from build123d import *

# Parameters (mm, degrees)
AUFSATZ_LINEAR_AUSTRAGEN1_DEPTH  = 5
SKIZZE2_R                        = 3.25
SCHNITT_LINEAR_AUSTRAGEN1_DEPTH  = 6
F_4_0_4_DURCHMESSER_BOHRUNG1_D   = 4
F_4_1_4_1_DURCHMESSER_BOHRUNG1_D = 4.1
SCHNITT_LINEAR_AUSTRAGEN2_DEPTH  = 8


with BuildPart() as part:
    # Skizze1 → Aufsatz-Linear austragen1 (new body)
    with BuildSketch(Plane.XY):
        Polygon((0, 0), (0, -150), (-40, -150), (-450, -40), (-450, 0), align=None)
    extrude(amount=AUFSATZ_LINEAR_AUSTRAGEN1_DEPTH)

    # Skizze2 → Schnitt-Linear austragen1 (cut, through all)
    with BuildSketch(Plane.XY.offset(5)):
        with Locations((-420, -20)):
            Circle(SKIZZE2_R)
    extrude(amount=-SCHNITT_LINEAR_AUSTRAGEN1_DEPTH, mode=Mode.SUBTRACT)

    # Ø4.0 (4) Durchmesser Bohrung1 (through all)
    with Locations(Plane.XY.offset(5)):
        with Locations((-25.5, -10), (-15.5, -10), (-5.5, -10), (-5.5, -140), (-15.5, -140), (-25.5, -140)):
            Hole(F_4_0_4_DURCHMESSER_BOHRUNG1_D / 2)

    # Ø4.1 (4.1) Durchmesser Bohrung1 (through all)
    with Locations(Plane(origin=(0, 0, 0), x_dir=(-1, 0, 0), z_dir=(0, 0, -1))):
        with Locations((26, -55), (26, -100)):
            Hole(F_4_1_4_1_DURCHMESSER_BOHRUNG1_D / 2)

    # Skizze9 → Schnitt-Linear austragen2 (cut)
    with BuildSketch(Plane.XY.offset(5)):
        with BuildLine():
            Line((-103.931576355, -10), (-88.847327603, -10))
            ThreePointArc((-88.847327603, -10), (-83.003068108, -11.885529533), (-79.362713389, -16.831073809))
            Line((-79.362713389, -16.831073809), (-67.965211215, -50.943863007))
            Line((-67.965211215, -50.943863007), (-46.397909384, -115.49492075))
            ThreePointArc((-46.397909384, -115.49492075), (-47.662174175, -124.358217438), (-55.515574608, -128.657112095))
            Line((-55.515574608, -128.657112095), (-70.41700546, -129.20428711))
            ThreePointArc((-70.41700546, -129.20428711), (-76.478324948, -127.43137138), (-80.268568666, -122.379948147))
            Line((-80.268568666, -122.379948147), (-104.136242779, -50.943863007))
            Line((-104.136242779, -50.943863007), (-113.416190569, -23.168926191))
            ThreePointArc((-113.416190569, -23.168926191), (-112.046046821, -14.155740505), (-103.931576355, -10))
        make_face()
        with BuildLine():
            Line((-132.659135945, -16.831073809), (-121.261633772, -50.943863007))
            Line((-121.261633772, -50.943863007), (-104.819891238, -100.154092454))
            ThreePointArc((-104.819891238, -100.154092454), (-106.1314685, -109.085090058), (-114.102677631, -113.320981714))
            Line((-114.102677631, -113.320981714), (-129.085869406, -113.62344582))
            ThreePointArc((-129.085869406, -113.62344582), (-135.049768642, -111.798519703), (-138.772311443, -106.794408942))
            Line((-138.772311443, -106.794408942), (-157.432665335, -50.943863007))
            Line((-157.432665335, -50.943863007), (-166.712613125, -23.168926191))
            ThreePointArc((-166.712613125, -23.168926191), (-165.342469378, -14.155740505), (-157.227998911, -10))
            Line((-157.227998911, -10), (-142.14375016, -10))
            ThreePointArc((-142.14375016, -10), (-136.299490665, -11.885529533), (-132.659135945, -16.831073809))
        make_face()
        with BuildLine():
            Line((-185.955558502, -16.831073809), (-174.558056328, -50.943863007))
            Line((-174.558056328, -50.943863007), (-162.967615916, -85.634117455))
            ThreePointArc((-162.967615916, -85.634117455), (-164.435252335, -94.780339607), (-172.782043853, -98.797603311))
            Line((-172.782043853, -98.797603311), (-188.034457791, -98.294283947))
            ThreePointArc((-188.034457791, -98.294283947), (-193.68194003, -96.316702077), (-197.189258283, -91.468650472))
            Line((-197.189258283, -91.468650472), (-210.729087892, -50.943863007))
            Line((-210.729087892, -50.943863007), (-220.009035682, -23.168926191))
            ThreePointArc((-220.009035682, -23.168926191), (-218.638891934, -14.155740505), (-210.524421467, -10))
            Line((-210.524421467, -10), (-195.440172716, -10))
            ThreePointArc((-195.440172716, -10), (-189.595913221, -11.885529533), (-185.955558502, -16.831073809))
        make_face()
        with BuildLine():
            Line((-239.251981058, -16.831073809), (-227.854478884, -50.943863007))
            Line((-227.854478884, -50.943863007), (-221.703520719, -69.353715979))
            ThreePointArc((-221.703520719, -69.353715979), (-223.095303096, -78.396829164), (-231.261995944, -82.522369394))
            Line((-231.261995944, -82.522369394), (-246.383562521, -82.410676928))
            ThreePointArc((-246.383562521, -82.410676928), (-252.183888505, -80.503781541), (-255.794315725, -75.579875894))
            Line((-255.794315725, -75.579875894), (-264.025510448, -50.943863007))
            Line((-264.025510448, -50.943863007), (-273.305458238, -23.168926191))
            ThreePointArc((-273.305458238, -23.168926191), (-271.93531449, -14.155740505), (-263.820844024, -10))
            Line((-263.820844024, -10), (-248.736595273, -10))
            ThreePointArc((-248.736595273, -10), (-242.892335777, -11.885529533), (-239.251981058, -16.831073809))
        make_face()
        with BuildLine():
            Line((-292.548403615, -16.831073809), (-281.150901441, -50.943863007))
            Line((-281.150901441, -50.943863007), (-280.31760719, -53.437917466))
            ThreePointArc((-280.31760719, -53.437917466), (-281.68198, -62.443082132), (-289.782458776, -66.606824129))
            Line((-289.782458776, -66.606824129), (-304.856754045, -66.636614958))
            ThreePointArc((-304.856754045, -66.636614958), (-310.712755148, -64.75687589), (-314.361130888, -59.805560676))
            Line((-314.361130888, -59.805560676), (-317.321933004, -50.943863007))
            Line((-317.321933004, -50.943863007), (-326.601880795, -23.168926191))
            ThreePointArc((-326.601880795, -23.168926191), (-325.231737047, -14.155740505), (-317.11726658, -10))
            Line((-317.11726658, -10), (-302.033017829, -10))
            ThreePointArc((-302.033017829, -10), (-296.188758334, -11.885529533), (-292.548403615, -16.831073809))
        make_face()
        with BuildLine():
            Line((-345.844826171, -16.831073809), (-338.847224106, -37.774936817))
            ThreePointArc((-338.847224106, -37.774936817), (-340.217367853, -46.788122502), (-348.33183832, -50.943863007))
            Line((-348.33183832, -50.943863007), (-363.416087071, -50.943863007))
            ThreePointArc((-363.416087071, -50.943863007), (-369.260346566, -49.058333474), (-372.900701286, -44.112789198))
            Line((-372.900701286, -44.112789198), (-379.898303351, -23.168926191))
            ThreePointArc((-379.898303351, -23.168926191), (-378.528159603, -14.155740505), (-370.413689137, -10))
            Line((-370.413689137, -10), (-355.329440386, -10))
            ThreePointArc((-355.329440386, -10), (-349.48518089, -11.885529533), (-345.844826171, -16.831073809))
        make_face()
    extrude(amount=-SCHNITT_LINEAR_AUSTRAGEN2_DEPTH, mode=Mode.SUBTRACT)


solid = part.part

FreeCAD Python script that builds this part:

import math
import FreeCAD as App
import Part
import Sketcher


def add_polygon(sketch, points):
    """Adds a closed chain of lines whose ends are joined by coincident constraints."""
    first, n = sketch.GeometryCount, len(points)
    for a, b in zip(points, points[1:] + points[:1]):
        sketch.addGeometry(Part.LineSegment(App.Vector(*a, 0), App.Vector(*b, 0)), False)
    for i in range(n):
        sketch.addConstraint(Sketcher.Constraint("Coincident", first + i, 2, first + (i + 1) % n, 1))

doc = App.newDocument("Part")
body = doc.addObject("PartDesign::Body", "Body")

# Sketch on XY plane
sketch1 = body.newObject("Sketcher::SketchObject", "Sketch")
sketch1.AttachmentSupport = (doc.getObject("XY_Plane"), [""])
sketch1.MapMode = "FlatFace"
add_polygon(sketch1, [(0, -150), (0, 0), (-450, 0), (-450, -40), (-40, -150)])  # lines 0-4
sketch1.addConstraint([
    Sketcher.Constraint("Vertical", 0),
    Sketcher.Constraint("Horizontal", 1),
    Sketcher.Constraint("Vertical", 2),
    Sketcher.Constraint("Horizontal", 4),
    Sketcher.Constraint("Coincident", 0, 2, -1, 1),
    Sketcher.Constraint("Equal", 4, 2),
    Sketcher.Constraint("DistanceX", 1, 2, 1, 1, 450.0),
    Sketcher.Constraint("DistanceX", 4, 1, 4, 2, 40.0),
    Sketcher.Constraint("DistanceY", 0, 1, 0, 2, 150.0),
])
pad1 = body.newObject("PartDesign::Pad", "Pad")
pad1.Profile = sketch1
pad1.Length = 5

# Sketch on XY plane
sketch2 = body.newObject("Sketcher::SketchObject", "Sketch001")
sketch2.AttachmentSupport = (doc.getObject("XY_Plane"), [""])
sketch2.MapMode = "FlatFace"
sketch2.AttachmentOffset = App.Placement(App.Vector(0, 0, 5), App.Rotation())
sketch2.addGeometry(Part.Circle(App.Vector(-420, -20, 0), App.Vector(0, 0, 1), 3.25), False)
sketch2.addConstraint([
    Sketcher.Constraint("Diameter", 0, 6.5),
    Sketcher.Constraint("DistanceX", 0, 3, -1, 1, 420.0),
    Sketcher.Constraint("DistanceY", 0, 3, -1, 1, 20.0),
])
pocket1 = body.newObject("PartDesign::Pocket", "Pocket")
pocket1.Profile = sketch2
pocket1.Type = "ThroughAll"

# Sketch on XY plane
sketch3 = body.newObject("Sketcher::SketchObject", "Sketch002")
sketch3.AttachmentSupport = (doc.getObject("XY_Plane"), [""])
sketch3.MapMode = "FlatFace"
sketch3.AttachmentOffset = App.Placement(App.Vector(0, 0, 5), App.Rotation())
sketch3.addGeometry([
    Part.Circle(App.Vector(-25.5, -10, 0), App.Vector(0, 0, 1), 2),  # 0
    Part.Circle(App.Vector(-15.5, -10, 0), App.Vector(0, 0, 1), 2),  # 1
    Part.Circle(App.Vector(-5.5, -10, 0), App.Vector(0, 0, 1), 2),  # 2
    Part.Circle(App.Vector(-5.5, -140, 0), App.Vector(0, 0, 1), 2),  # 3
    Part.Circle(App.Vector(-15.5, -140, 0), App.Vector(0, 0, 1), 2),  # 4
    Part.Circle(App.Vector(-25.5, -140, 0), App.Vector(0, 0, 1), 2),  # 5
], False)
sketch3.addConstraint([
    Sketcher.Constraint("Equal", 0, 1),
    Sketcher.Constraint("Equal", 1, 2),
    Sketcher.Constraint("Equal", 2, 3),
    Sketcher.Constraint("Equal", 3, 4),
    Sketcher.Constraint("Equal", 4, 5),
    Sketcher.Constraint("Horizontal", 0, 3, 1, 3),
    Sketcher.Constraint("Horizontal", 1, 3, 2, 3),
    Sketcher.Constraint("Horizontal", 3, 3, 4, 3),
    Sketcher.Constraint("Horizontal", 4, 3, 5, 3),
    Sketcher.Constraint("Vertical", 2, 3, 3, 3),
    Sketcher.Constraint("Vertical", 1, 3, 4, 3),
    Sketcher.Constraint("Vertical", 0, 3, 5, 3),
    Sketcher.Constraint("Diameter", 0, 4.0),
    Sketcher.Constraint("DistanceY", 0, 3, -1, 1, 10.0),
    Sketcher.Constraint("DistanceY", 3, 3, -1, 1, 140.0),
    Sketcher.Constraint("DistanceX", 0, 3, 1, 3, 10.0),
    Sketcher.Constraint("DistanceX", 1, 3, 2, 3, 10.0),
    Sketcher.Constraint("DistanceX", 0, 3, -1, 1, 25.5),
])
doc.recompute()
hole = body.newObject("PartDesign::Hole", "Hole")
hole.Profile = sketch3
hole.ThreadType = "None"
hole.Diameter = 4
hole.DepthType = "ThroughAll"

# Sketch on XY plane
sketch4 = body.newObject("Sketcher::SketchObject", "Sketch003")
sketch4.AttachmentSupport = (doc.getObject("XY_Plane"), [""])
sketch4.MapMode = "FlatFace"
sketch4.addGeometry([
    Part.Circle(App.Vector(-26, -55, 0), App.Vector(0, 0, 1), 2.05),
    Part.Circle(App.Vector(-26, -100, 0), App.Vector(0, 0, 1), 2.05),
], False)
sketch4.addConstraint([
    Sketcher.Constraint("Equal", 0, 1),
    Sketcher.Constraint("Vertical", 0, 3, 1, 3),
    Sketcher.Constraint("Diameter", 0, 4.1),
    Sketcher.Constraint("DistanceX", 0, 3, -1, 1, 26.0),
    Sketcher.Constraint("DistanceY", 0, 3, -1, 1, 55.0),
    Sketcher.Constraint("DistanceY", 1, 3, -1, 1, 100.0),
])
doc.recompute()
hole2 = body.newObject("PartDesign::Hole", "Hole001")
hole2.Profile = sketch4
hole2.ThreadType = "None"
hole2.Diameter = 4.1
hole2.DepthType = "ThroughAll"
hole2.Reversed = True

# Sketch on XY plane
sketch5 = body.newObject("Sketcher::SketchObject", "Sketch004")
sketch5.AttachmentSupport = (doc.getObject("XY_Plane"), [""])
sketch5.MapMode = "FlatFace"
sketch5.AttachmentOffset = App.Placement(App.Vector(0, 0, 5), App.Rotation())
sketch5.addGeometry([
    Part.LineSegment(App.Vector(-88.847328, -10, 0), App.Vector(-103.931576, -10, 0)),  # 0
    Part.ArcOfCircle(Part.Circle(App.Vector(-103.931576, -20, 0), App.Vector(0, 0, 1), 10), math.radians(90), math.radians(198.475107)),  # 1
    Part.LineSegment(App.Vector(-113.416191, -23.168926, 0), App.Vector(-104.136243, -50.943863, 0)),  # 2
    Part.LineSegment(App.Vector(-104.136243, -50.943863, 0), App.Vector(-80.268569, -122.379948, 0)),  # 3
    Part.ArcOfCircle(Part.Circle(App.Vector(-70.783954, -119.211022, 0), App.Vector(0, 0, 1), 10), math.radians(-161.524893), math.radians(-87.897065)),  # 4
    Part.LineSegment(App.Vector(-70.417005, -129.204287, 0), App.Vector(-55.515575, -128.657112, 0)),  # 5
    Part.ArcOfCircle(Part.Circle(App.Vector(-55.882524, -118.663847, 0), App.Vector(0, 0, 1), 10), math.radians(-87.897065), math.radians(18.475107)),  # 6
    Part.LineSegment(App.Vector(-46.397909, -115.494921, 0), App.Vector(-67.965211, -50.943863, 0)),  # 7
    Part.LineSegment(App.Vector(-67.965211, -50.943863, 0), App.Vector(-79.362713, -16.831074, 0)),  # 8
    Part.ArcOfCircle(Part.Circle(App.Vector(-88.847328, -20, 0), App.Vector(0, 0, 1), 10), math.radians(18.475107), math.radians(90)),  # 9
    Part.LineSegment(App.Vector(-121.261634, -50.943863, 0), App.Vector(-132.659136, -16.831074, 0)),  # 10
    Part.ArcOfCircle(Part.Circle(App.Vector(-142.14375, -20, 0), App.Vector(0, 0, 1), 10), math.radians(18.475107), math.radians(90)),  # 11
    Part.LineSegment(App.Vector(-142.14375, -10, 0), App.Vector(-157.227999, -10, 0)),  # 12
    Part.ArcOfCircle(Part.Circle(App.Vector(-157.227999, -20, 0), App.Vector(0, 0, 1), 10), math.radians(90), math.radians(198.475107)),  # 13
    Part.LineSegment(App.Vector(-166.712613, -23.168926, 0), App.Vector(-157.432665, -50.943863, 0)),  # 14
    Part.LineSegment(App.Vector(-157.432665, -50.943863, 0), App.Vector(-138.772311, -106.794409, 0)),  # 15
    Part.ArcOfCircle(Part.Circle(App.Vector(-129.287697, -103.625483, 0), App.Vector(0, 0, 1), 10), math.radians(-161.524893), math.radians(-88.843533)),  # 16
    Part.LineSegment(App.Vector(-129.085869, -113.623446, 0), App.Vector(-114.102678, -113.320982, 0)),  # 17
    Part.ArcOfCircle(Part.Circle(App.Vector(-114.304505, -103.323019, 0), App.Vector(0, 0, 1), 10), math.radians(-88.843533), math.radians(18.475107)),  # 18
    Part.LineSegment(App.Vector(-104.819891, -100.154092, 0), App.Vector(-121.261634, -50.943863, 0)),  # 19
    Part.LineSegment(App.Vector(-162.967616, -85.634117, 0), App.Vector(-185.955559, -16.831074, 0)),  # 20
    Part.ArcOfCircle(Part.Circle(App.Vector(-195.440173, -20, 0), App.Vector(0, 0, 1), 10), math.radians(18.475107), math.radians(90)),  # 21
    Part.LineSegment(App.Vector(-195.440173, -10, 0), App.Vector(-210.524421, -10, 0)),  # 22
    Part.ArcOfCircle(Part.Circle(App.Vector(-210.524421, -20, 0), App.Vector(0, 0, 1), 10), math.radians(90), math.radians(198.475107)),  # 23
    Part.LineSegment(App.Vector(-220.009036, -23.168926, 0), App.Vector(-210.729088, -50.943863, 0)),  # 24
    Part.LineSegment(App.Vector(-210.729088, -50.943863, 0), App.Vector(-197.189258, -91.46865, 0)),  # 25
    Part.ArcOfCircle(Part.Circle(App.Vector(-187.704644, -88.299724, 0), App.Vector(0, 0, 1), 10), math.radians(-161.524893), math.radians(-91.890036)),  # 26
    Part.LineSegment(App.Vector(-188.034458, -98.294284, 0), App.Vector(-172.782044, -98.797603, 0)),  # 27
    Part.ArcOfCircle(Part.Circle(App.Vector(-172.45223, -88.803044, 0), App.Vector(0, 0, 1), 10), math.radians(-91.890036), math.radians(18.475107)),  # 28
    Part.LineSegment(App.Vector(-227.854479, -50.943863, 0), App.Vector(-239.251981, -16.831074, 0)),  # 29
    Part.ArcOfCircle(Part.Circle(App.Vector(-248.736595, -20, 0), App.Vector(0, 0, 1), 10), math.radians(18.475107), math.radians(90)),  # 30
    Part.LineSegment(App.Vector(-248.736595, -10, 0), App.Vector(-263.820844, -10, 0)),  # 31
    Part.ArcOfCircle(Part.Circle(App.Vector(-263.820844, -20, 0), App.Vector(0, 0, 1), 10), math.radians(90), math.radians(198.475107)),  # 32
    Part.LineSegment(App.Vector(-273.305458, -23.168926, 0), App.Vector(-264.02551, -50.943863, 0)),  # 33
    Part.LineSegment(App.Vector(-264.02551, -50.943863, 0), App.Vector(-255.794316, -75.579876, 0)),  # 34
    Part.ArcOfCircle(Part.Circle(App.Vector(-246.309702, -72.41095, 0), App.Vector(0, 0, 1), 10), math.radians(-161.524893), math.radians(-90.423196)),  # 35
    Part.LineSegment(App.Vector(-246.383563, -82.410677, 0), App.Vector(-231.261996, -82.522369, 0)),  # 36
    Part.ArcOfCircle(Part.Circle(App.Vector(-231.188135, -72.522642, 0), App.Vector(0, 0, 1), 10), math.radians(-90.423196), math.radians(18.475107)),  # 37
    Part.LineSegment(App.Vector(-221.703521, -69.353716, 0), App.Vector(-227.854479, -50.943863, 0)),  # 38
    Part.LineSegment(App.Vector(-281.150901, -50.943863, 0), App.Vector(-292.548404, -16.831074, 0)),  # 39
    Part.ArcOfCircle(Part.Circle(App.Vector(-302.033018, -20, 0), App.Vector(0, 0, 1), 10), math.radians(18.475107), math.radians(90)),  # 40
    Part.LineSegment(App.Vector(-302.033018, -10, 0), App.Vector(-317.117267, -10, 0)),  # 41
    Part.ArcOfCircle(Part.Circle(App.Vector(-317.117267, -20, 0), App.Vector(0, 0, 1), 10), math.radians(90), math.radians(198.475107)),  # 42
    Part.LineSegment(App.Vector(-326.601881, -23.168926, 0), App.Vector(-317.321933, -50.943863, 0)),  # 43
    Part.LineSegment(App.Vector(-317.321933, -50.943863, 0), App.Vector(-314.361131, -59.805561, 0)),  # 44
    Part.ArcOfCircle(Part.Circle(App.Vector(-304.876517, -56.636634, 0), App.Vector(0, 0, 1), 10), math.radians(-161.524893), math.radians(-89.886768)),  # 45
    Part.LineSegment(App.Vector(-304.856754, -66.636615, 0), App.Vector(-289.782459, -66.606824, 0)),  # 46
    Part.ArcOfCircle(Part.Circle(App.Vector(-289.802221, -56.606844, 0), App.Vector(0, 0, 1), 10), math.radians(-89.886768), math.radians(18.475107)),  # 47
    Part.LineSegment(App.Vector(-280.317607, -53.437917, 0), App.Vector(-281.150901, -50.943863, 0)),  # 48
    Part.LineSegment(App.Vector(-338.847224, -37.774937, 0), App.Vector(-345.844826, -16.831074, 0)),  # 49
    Part.ArcOfCircle(Part.Circle(App.Vector(-355.32944, -20, 0), App.Vector(0, 0, 1), 10), math.radians(18.475107), math.radians(90)),  # 50
    Part.LineSegment(App.Vector(-355.32944, -10, 0), App.Vector(-370.413689, -10, 0)),  # 51
    Part.ArcOfCircle(Part.Circle(App.Vector(-370.413689, -20, 0), App.Vector(0, 0, 1), 10), math.radians(90), math.radians(198.475107)),  # 52
    Part.LineSegment(App.Vector(-379.898303, -23.168926, 0), App.Vector(-372.900701, -44.112789, 0)),  # 53
    Part.ArcOfCircle(Part.Circle(App.Vector(-363.416087, -40.943863, 0), App.Vector(0, 0, 1), 10), math.radians(-161.524893), math.radians(-90)),  # 54
    Part.LineSegment(App.Vector(-363.416087, -50.943863, 0), App.Vector(-348.331838, -50.943863, 0)),  # 55
    Part.ArcOfCircle(Part.Circle(App.Vector(-348.331838, -40.943863, 0), App.Vector(0, 0, 1), 10), math.radians(-90), math.radians(18.475107)),  # 56
], False)
sketch5.addConstraint([
    Sketcher.Constraint("Tangent", 0, 2, 1, 1),
    Sketcher.Constraint("Tangent", 1, 2, 2, 1),
    Sketcher.Constraint("Coincident", 2, 2, 3, 1),
    Sketcher.Constraint("Tangent", 3, 2, 4, 1),
    Sketcher.Constraint("Tangent", 4, 2, 5, 1),
    Sketcher.Constraint("Tangent", 5, 2, 6, 1),
    Sketcher.Constraint("Tangent", 6, 2, 7, 1),
    Sketcher.Constraint("Coincident", 7, 2, 8, 1),
    Sketcher.Constraint("Tangent", 8, 2, 9, 1),
    Sketcher.Constraint("Tangent", 9, 2, 0, 1),
    Sketcher.Constraint("Tangent", 10, 2, 11, 1),
    Sketcher.Constraint("Tangent", 11, 2, 12, 1),
    Sketcher.Constraint("Tangent", 12, 2, 13, 1),
    Sketcher.Constraint("Tangent", 13, 2, 14, 1),
    Sketcher.Constraint("Coincident", 14, 2, 15, 1),
    Sketcher.Constraint("Tangent", 15, 2, 16, 1),
    Sketcher.Constraint("Tangent", 16, 2, 17, 1),
    Sketcher.Constraint("Tangent", 17, 2, 18, 1),
    Sketcher.Constraint("Tangent", 18, 2, 19, 1),
    Sketcher.Constraint("Coincident", 19, 2, 10, 1),
    Sketcher.Constraint("Tangent", 20, 2, 21, 1),
    Sketcher.Constraint("Tangent", 21, 2, 22, 1),
    Sketcher.Constraint("Tangent", 22, 2, 23, 1),
    Sketcher.Constraint("Tangent", 23, 2, 24, 1),
    Sketcher.Constraint("Coincident", 24, 2, 25, 1),
    Sketcher.Constraint("Tangent", 25, 2, 26, 1),
    Sketcher.Constraint("Tangent", 26, 2, 27, 1),
    Sketcher.Constraint("Tangent", 27, 2, 28, 1),
    Sketcher.Constraint("Tangent", 28, 2, 20, 1),
    Sketcher.Constraint("Tangent", 29, 2, 30, 1),
    Sketcher.Constraint("Tangent", 30, 2, 31, 1),
    Sketcher.Constraint("Tangent", 31, 2, 32, 1),
    Sketcher.Constraint("Tangent", 32, 2, 33, 1),
    Sketcher.Constraint("Coincident", 33, 2, 34, 1),
    Sketcher.Constraint("Tangent", 34, 2, 35, 1),
    Sketcher.Constraint("Tangent", 35, 2, 36, 1),
    Sketcher.Constraint("Tangent", 36, 2, 37, 1),
    Sketcher.Constraint("Tangent", 37, 2, 38, 1),
    Sketcher.Constraint("Coincident", 38, 2, 29, 1),
    Sketcher.Constraint("Tangent", 39, 2, 40, 1),
    Sketcher.Constraint("Tangent", 40, 2, 41, 1),
    Sketcher.Constraint("Tangent", 41, 2, 42, 1),
    Sketcher.Constraint("Tangent", 42, 2, 43, 1),
    Sketcher.Constraint("Coincident", 43, 2, 44, 1),
    Sketcher.Constraint("Tangent", 44, 2, 45, 1),
    Sketcher.Constraint("Tangent", 45, 2, 46, 1),
    Sketcher.Constraint("Tangent", 46, 2, 47, 1),
    Sketcher.Constraint("Tangent", 47, 2, 48, 1),
    Sketcher.Constraint("Coincident", 48, 2, 39, 1),
    Sketcher.Constraint("Tangent", 49, 2, 50, 1),
    Sketcher.Constraint("Tangent", 50, 2, 51, 1),
    Sketcher.Constraint("Tangent", 51, 2, 52, 1),
    Sketcher.Constraint("Tangent", 52, 2, 53, 1),
    Sketcher.Constraint("Tangent", 53, 2, 54, 1),
    Sketcher.Constraint("Tangent", 54, 2, 55, 1),
    Sketcher.Constraint("Tangent", 55, 2, 56, 1),
    Sketcher.Constraint("Tangent", 56, 2, 49, 1),
    Sketcher.Constraint("Horizontal", 0),
    Sketcher.Constraint("Horizontal", 12),
    Sketcher.Constraint("Horizontal", 22),
    Sketcher.Constraint("Horizontal", 31),
    Sketcher.Constraint("Horizontal", 41),
    Sketcher.Constraint("Horizontal", 51),
    Sketcher.Constraint("Horizontal", 55),
    Sketcher.Constraint("Equal", 1, 4),
    Sketcher.Constraint("Equal", 4, 6),
    Sketcher.Constraint("Equal", 6, 9),
    Sketcher.Constraint("Equal", 9, 11),
    Sketcher.Constraint("Equal", 11, 13),
    Sketcher.Constraint("Equal", 13, 16),
    Sketcher.Constraint("Equal", 16, 18),
    Sketcher.Constraint("Equal", 18, 21),
    Sketcher.Constraint("Equal", 21, 23),
    Sketcher.Constraint("Equal", 23, 26),
    Sketcher.Constraint("Equal", 26, 28),
    Sketcher.Constraint("Equal", 28, 30),
    Sketcher.Constraint("Equal", 30, 32),
    Sketcher.Constraint("Equal", 32, 35),
    Sketcher.Constraint("Equal", 35, 37),
    Sketcher.Constraint("Equal", 37, 40),
    Sketcher.Constraint("Equal", 40, 42),
    Sketcher.Constraint("Equal", 42, 45),
    Sketcher.Constraint("Equal", 45, 47),
    Sketcher.Constraint("Equal", 47, 50),
    Sketcher.Constraint("Equal", 50, 52),
    Sketcher.Constraint("Equal", 52, 54),
    Sketcher.Constraint("Equal", 54, 56),
    Sketcher.Constraint("Parallel", 2, 3),
    Sketcher.Constraint("Parallel", 3, 7),
    Sketcher.Constraint("Parallel", 7, 8),
    Sketcher.Constraint("Parallel", 8, 10),
    Sketcher.Constraint("Parallel", 10, 14),
    Sketcher.Constraint("Parallel", 14, 15),
    Sketcher.Constraint("Parallel", 15, 19),
    Sketcher.Constraint("Parallel", 19, 20),
    Sketcher.Constraint("Parallel", 20, 24),
    Sketcher.Constraint("Parallel", 24, 25),
    Sketcher.Constraint("Parallel", 25, 29),
    Sketcher.Constraint("Parallel", 29, 33),
    Sketcher.Constraint("Parallel", 33, 34),
    Sketcher.Constraint("Parallel", 34, 38),
    Sketcher.Constraint("Parallel", 38, 39),
    Sketcher.Constraint("Parallel", 39, 43),
    Sketcher.Constraint("Parallel", 43, 44),
    Sketcher.Constraint("Parallel", 44, 48),
    Sketcher.Constraint("Parallel", 48, 49),
    Sketcher.Constraint("Parallel", 49, 53),
    Sketcher.Constraint("Horizontal", 9, 3, 11, 3),
    Sketcher.Constraint("Horizontal", 13, 3, 21, 3),
    Sketcher.Constraint("Horizontal", 23, 3, 30, 3),
    Sketcher.Constraint("Horizontal", 32, 3, 40, 3),
    Sketcher.Constraint("Horizontal", 42, 3, 50, 3),
    Sketcher.Constraint("Horizontal", 2, 2, 7, 2),
    Sketcher.Constraint("Horizontal", 7, 2, 14, 2),
    Sketcher.Constraint("Horizontal", 14, 2, 19, 2),
    Sketcher.Constraint("Horizontal", 19, 2, 24, 2),
    Sketcher.Constraint("Horizontal", 24, 2, 33, 2),
    Sketcher.Constraint("Horizontal", 33, 2, 38, 2),
    Sketcher.Constraint("Horizontal", 38, 2, 43, 2),
    Sketcher.Constraint("Horizontal", 43, 2, 48, 2),
    Sketcher.Constraint("Horizontal", 48, 2, 54, 2),
    Sketcher.Constraint("Equal", 0, 12),
    Sketcher.Constraint("Equal", 12, 22),
    Sketcher.Constraint("Equal", 22, 31),
    Sketcher.Constraint("Equal", 31, 41),
    Sketcher.Constraint("Equal", 41, 51),
    Sketcher.Constraint("Radius", 1, 10.0),
    Sketcher.Constraint("DistanceY", 1, 3, -1, 1, 20.0),
    Sketcher.Constraint("DistanceX", 13, 3, -1, 1, 157.227999),
    Sketcher.Constraint("DistanceX", 0, 2, 0, 1, 15.084249),
    Sketcher.Constraint("DistanceX", 35, 3, -1, 1, 246.309702),
    Sketcher.Constraint("DistanceX", 48, 2, -1, 1, 281.150901),
    Sketcher.Constraint("DistanceX", 53, 2, -1, 1, 372.900701),
    Sketcher.Constraint("Distance", 3, 75.317861),
    Sketcher.Constraint("Distance", 8, 35.966449),
    Sketcher.Constraint("Distance", 19, 51.884271),
    Sketcher.Constraint("Distance", 20, 72.541742),
    Sketcher.Constraint("Distance", 25, 42.72687),
    Sketcher.Constraint("Distance", 36, 15.121979),
    Sketcher.Constraint("Distance", 38, 19.410229),
    Sketcher.Constraint("Distance", 48, 2.629579),
    Sketcher.Constraint("DistanceY", 4, 3, -1, 1, 119.211022),
    Sketcher.Constraint("DistanceX", 23, 3, -1, 1, 210.524421),
    Sketcher.Constraint("DistanceX", 1, 2, -1, 1, 113.416191),
    Sketcher.Constraint("DistanceX", 6, 2, -1, 1, 46.397909),
    Sketcher.Constraint("DistanceX", 15, 2, -1, 1, 138.772311),
    Sketcher.Constraint("DistanceX", 44, 2, -1, 1, 314.361131),
])
pocket2 = body.newObject("PartDesign::Pocket", "Pocket001")
pocket2.Profile = sketch5
pocket2.Length = 8

doc.recompute()
